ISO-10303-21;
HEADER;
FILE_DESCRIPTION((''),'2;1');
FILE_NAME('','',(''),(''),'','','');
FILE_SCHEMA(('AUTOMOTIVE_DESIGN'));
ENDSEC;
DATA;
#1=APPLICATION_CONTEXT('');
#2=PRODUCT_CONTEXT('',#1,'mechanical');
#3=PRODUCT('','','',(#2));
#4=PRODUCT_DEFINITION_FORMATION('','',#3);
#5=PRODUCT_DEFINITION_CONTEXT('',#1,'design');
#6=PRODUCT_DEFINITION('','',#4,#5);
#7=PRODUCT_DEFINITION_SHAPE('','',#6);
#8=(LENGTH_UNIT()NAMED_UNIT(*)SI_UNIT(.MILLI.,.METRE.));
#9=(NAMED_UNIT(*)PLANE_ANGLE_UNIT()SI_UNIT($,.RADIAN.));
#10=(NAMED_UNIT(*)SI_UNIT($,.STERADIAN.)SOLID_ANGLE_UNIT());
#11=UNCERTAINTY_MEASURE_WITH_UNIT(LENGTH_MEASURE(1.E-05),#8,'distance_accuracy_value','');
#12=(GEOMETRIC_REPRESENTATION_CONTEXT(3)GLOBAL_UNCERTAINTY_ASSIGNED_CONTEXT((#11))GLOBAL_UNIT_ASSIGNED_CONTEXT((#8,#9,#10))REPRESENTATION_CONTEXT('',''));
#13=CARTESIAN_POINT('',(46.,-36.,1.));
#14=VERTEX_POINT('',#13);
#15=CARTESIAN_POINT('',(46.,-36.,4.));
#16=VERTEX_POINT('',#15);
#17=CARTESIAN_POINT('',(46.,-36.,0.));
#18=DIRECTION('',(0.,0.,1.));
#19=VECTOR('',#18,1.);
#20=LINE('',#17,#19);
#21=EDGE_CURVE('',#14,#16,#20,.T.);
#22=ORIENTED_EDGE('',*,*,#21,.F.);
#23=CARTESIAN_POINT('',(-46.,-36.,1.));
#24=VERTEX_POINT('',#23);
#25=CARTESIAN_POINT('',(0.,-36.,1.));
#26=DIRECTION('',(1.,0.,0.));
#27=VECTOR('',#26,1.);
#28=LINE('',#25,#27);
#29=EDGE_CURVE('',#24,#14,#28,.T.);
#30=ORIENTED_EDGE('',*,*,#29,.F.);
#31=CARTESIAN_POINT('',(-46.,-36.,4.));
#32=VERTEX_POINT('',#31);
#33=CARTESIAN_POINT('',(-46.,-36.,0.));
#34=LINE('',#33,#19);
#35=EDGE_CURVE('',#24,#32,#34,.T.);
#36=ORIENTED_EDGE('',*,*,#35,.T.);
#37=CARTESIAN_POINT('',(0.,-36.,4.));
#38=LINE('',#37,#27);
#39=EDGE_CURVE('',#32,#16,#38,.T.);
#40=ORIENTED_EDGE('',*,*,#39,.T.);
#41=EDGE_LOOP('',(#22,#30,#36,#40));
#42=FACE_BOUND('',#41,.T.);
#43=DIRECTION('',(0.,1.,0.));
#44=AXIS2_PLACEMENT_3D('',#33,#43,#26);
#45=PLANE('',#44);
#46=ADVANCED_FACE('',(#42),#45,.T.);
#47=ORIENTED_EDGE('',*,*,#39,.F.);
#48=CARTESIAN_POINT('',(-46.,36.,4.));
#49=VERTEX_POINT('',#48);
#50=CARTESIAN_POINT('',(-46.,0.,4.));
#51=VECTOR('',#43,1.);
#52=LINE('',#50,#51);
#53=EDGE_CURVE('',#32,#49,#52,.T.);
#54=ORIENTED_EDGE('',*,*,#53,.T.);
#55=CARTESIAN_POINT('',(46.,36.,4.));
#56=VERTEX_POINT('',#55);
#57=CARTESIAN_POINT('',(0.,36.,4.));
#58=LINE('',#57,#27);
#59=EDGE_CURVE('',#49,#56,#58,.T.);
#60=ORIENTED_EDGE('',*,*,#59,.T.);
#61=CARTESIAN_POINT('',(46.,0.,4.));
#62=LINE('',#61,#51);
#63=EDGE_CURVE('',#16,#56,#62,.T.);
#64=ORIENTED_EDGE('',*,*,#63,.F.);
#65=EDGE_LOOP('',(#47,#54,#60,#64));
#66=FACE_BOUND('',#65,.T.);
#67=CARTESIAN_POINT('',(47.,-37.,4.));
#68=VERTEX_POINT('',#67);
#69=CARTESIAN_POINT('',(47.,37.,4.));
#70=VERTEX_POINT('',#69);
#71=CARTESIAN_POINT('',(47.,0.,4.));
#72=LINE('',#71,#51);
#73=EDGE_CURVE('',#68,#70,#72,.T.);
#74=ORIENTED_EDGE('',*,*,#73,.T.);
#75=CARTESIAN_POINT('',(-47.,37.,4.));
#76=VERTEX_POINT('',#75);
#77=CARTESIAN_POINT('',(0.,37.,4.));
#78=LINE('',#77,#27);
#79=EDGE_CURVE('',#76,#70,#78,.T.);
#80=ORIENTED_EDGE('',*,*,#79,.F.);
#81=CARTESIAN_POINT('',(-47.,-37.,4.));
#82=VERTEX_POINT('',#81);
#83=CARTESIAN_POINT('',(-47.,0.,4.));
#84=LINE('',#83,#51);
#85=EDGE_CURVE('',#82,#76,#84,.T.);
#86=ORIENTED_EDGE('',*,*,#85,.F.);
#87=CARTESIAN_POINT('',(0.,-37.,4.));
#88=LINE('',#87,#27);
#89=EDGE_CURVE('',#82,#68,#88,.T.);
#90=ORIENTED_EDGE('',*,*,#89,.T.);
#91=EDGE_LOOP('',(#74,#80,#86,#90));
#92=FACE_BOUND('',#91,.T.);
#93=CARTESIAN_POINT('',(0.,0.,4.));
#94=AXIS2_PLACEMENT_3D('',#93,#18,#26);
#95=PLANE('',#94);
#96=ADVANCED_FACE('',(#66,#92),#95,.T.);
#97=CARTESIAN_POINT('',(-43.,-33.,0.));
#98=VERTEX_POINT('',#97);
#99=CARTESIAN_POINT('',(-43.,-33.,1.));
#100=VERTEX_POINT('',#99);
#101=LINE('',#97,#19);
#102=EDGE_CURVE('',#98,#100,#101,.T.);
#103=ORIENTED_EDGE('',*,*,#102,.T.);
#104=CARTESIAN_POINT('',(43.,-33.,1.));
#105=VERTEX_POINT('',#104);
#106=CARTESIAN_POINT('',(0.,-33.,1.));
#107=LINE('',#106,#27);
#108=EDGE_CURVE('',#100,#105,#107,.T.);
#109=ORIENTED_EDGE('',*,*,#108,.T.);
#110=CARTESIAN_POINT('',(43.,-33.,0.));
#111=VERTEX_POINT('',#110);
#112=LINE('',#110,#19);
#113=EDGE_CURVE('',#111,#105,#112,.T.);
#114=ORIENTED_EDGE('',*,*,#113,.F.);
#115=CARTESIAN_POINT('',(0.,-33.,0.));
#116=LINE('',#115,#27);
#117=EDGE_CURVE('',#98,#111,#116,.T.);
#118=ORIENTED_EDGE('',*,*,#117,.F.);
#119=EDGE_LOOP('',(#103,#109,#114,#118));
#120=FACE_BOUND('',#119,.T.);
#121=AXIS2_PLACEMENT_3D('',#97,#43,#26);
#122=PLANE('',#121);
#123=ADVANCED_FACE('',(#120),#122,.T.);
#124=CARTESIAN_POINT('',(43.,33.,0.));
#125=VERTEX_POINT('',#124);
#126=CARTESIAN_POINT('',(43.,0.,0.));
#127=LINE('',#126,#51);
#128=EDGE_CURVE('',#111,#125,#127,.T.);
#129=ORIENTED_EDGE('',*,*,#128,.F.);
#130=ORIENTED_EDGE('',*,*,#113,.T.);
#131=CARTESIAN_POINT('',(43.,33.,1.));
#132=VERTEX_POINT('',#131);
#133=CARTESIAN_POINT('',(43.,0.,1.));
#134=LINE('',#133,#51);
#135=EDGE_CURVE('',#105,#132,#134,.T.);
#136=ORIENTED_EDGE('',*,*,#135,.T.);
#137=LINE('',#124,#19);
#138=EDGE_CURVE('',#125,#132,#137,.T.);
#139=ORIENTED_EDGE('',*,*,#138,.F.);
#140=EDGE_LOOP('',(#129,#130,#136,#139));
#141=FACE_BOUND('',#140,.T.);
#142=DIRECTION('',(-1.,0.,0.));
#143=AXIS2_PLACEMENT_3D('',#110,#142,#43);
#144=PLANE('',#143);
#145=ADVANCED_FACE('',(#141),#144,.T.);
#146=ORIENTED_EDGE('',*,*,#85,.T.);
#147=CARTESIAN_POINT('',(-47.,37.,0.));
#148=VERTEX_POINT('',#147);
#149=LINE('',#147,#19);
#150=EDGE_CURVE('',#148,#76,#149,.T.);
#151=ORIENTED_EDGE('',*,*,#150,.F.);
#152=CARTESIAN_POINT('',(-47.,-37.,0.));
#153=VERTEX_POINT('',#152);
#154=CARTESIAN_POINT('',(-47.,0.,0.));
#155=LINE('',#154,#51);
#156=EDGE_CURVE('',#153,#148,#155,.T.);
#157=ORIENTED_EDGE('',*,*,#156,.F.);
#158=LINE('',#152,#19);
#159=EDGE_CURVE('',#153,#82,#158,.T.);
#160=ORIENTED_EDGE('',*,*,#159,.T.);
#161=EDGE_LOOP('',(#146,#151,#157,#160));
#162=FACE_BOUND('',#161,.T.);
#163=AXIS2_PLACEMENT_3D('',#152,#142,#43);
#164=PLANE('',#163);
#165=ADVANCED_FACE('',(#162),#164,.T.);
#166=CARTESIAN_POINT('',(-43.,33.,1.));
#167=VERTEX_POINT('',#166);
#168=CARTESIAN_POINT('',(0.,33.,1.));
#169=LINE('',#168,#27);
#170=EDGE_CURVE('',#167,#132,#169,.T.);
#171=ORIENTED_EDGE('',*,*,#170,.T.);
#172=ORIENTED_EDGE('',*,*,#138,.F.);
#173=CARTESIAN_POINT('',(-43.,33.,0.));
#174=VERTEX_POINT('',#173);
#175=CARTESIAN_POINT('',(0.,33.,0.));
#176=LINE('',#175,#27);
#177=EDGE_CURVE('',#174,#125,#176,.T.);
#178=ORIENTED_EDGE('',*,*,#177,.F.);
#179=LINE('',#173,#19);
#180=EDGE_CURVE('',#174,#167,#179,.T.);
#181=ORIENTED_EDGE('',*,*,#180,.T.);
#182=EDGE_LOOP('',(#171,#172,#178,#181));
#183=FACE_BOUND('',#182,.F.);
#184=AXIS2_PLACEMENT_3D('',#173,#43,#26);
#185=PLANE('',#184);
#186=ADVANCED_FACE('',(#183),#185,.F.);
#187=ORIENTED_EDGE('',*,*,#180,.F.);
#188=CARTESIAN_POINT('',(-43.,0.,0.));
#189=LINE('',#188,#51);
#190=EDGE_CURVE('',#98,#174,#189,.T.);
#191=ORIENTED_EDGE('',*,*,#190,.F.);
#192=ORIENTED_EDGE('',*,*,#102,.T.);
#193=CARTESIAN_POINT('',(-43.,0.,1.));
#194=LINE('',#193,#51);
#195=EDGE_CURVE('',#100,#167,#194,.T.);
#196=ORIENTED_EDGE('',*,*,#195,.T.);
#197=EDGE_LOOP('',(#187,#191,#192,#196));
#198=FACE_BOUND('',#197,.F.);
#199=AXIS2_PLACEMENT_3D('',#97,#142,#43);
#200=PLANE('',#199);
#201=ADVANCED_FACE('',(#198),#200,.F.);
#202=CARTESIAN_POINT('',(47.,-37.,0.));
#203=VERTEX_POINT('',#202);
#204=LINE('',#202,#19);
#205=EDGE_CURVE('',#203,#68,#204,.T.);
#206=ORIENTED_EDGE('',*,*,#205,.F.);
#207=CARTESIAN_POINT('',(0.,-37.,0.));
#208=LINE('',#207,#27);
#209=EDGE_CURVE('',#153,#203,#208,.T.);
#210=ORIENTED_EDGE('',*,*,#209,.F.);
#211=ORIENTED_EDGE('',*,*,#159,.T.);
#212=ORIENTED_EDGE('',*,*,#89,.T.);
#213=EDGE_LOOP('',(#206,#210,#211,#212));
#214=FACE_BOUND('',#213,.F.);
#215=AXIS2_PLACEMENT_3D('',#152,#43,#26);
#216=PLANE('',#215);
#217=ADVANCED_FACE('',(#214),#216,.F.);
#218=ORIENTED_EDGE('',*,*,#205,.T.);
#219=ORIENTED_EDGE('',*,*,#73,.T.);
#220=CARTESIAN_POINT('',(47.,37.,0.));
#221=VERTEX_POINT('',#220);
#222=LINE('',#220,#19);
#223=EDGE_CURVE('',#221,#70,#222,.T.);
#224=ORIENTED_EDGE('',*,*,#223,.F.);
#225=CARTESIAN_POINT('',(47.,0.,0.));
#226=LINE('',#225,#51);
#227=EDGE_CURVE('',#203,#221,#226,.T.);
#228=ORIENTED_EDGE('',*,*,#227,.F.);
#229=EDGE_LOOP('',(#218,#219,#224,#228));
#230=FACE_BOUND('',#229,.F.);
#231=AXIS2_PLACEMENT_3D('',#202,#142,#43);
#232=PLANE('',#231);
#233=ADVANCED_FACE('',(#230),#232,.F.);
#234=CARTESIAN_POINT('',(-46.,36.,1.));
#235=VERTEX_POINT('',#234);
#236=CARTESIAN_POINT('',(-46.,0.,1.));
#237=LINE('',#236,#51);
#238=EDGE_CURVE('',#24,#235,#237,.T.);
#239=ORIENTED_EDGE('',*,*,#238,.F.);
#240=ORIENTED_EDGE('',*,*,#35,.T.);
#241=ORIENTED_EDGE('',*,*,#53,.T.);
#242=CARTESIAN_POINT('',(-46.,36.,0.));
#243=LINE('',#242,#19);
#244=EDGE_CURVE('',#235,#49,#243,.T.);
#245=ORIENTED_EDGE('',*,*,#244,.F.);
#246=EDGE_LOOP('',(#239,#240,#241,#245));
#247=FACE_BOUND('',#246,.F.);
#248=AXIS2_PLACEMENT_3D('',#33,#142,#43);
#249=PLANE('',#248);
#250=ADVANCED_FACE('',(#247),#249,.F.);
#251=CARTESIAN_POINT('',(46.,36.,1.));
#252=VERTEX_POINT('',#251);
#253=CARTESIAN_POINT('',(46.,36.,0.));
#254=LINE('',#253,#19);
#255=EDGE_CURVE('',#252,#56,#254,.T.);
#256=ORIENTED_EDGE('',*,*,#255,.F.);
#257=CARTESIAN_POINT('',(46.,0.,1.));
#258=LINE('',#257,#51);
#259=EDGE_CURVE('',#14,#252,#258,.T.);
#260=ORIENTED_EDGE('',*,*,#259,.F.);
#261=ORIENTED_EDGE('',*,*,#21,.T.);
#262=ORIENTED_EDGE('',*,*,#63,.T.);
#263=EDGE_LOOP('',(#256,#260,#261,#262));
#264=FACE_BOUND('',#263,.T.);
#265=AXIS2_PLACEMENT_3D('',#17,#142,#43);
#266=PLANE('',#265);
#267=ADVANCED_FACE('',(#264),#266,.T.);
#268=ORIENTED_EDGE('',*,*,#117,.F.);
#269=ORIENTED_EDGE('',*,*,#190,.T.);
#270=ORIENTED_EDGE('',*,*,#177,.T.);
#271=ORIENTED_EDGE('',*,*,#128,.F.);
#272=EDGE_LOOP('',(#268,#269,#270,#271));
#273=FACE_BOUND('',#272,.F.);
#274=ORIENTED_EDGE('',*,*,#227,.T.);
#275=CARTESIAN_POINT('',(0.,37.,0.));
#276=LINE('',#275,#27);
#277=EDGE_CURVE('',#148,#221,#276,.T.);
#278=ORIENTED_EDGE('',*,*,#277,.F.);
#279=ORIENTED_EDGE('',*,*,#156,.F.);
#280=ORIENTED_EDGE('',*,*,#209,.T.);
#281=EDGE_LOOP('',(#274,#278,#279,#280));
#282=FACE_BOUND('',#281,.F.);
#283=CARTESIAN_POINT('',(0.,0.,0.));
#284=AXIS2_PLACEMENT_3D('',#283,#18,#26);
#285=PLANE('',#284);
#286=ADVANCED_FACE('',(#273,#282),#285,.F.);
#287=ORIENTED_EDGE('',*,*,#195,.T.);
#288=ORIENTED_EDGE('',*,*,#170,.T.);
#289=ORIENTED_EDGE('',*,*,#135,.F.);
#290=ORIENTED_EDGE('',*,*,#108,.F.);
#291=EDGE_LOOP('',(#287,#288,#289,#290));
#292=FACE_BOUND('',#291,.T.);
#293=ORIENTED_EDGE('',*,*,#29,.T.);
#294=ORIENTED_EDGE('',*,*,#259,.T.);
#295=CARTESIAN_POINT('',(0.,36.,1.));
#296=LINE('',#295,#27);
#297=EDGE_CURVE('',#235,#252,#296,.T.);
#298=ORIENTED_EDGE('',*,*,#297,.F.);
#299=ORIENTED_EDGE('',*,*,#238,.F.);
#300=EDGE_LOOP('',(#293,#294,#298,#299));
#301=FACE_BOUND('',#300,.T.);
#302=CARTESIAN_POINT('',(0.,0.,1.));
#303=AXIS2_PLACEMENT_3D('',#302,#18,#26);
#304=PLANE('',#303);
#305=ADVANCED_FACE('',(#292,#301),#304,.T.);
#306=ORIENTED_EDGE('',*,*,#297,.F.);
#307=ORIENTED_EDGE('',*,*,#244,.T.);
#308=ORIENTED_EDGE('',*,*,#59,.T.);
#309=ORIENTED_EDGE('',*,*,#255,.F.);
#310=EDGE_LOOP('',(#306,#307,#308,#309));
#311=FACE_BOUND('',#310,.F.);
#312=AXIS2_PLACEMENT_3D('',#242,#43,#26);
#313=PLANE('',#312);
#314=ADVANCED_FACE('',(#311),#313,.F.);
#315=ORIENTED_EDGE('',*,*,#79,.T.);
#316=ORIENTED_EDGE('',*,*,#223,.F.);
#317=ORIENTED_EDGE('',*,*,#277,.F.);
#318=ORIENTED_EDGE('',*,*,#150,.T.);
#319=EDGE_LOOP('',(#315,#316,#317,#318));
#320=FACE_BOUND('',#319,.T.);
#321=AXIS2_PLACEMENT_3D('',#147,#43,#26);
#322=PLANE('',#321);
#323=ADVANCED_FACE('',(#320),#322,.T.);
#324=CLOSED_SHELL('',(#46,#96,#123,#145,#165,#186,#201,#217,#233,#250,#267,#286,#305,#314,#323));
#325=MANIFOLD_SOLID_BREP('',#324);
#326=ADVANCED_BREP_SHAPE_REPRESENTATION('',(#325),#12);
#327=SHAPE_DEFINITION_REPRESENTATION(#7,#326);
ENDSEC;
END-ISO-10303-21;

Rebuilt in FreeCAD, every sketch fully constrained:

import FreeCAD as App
import Part
import Sketcher
from FreeCAD import Vector
Q = App.Units.Quantity


def add_polygon(sketch, points):
    """Adds a closed chain of lines whose ends are joined by coincident constraints."""
    first, n = sketch.GeometryCount, len(points)
    for a, b in zip(points, points[1:] + points[:1]):
        sketch.addGeometry(Part.LineSegment(App.Vector(*a, 0), App.Vector(*b, 0)), False)
    for i in range(n):
        sketch.addConstraint(Sketcher.Constraint("Coincident", first + i, 2, first + (i + 1) % n, 1))

doc = App.newDocument("Part")
params = doc.addObject("Spreadsheet::Sheet", "Params")
for row, (alias, value) in enumerate([
    ("sketch1_width", "94 mm"),
    ("sketch1_width2", "92 mm"),
    ("sketch1_height", "74 mm"),
    ("sketch1_height2", "72 mm"),
    ("pad1_length", "4 mm"),
    ("sketch2_width", "92 mm"),
    ("sketch2_width2", "86 mm"),
    ("sketch2_height", "72 mm"),
    ("sketch2_height2", "66 mm"),
    ("pad2_length", "1 mm"),
], start=1):
    params.set(f"A{row}", alias)
    params.set(f"B{row}", "=" + value)
    params.setAlias(f"B{row}", alias)

body = doc.addObject("PartDesign::Body", "Body")

sketch1 = body.newObject("Sketcher::SketchObject", "Sketch")
sketch1.AttachmentSupport = (doc.getObject("XY_Plane"), [""])
sketch1.MapMode = "FlatFace"
add_polygon(sketch1, [(-47, 37), (-47, -37), (47, -37), (47, 37)])
add_polygon(sketch1, [(46, -36), (-46, -36), (-46, 36), (46, 36)])
sketch1.addConstraint([
    Sketcher.Constraint("Vertical", 0),
    Sketcher.Constraint("Horizontal", 1),
    Sketcher.Constraint("Vertical", 2),
    Sketcher.Constraint("Horizontal", 3),
    Sketcher.Constraint("Horizontal", 4),
    Sketcher.Constraint("Vertical", 5),
    Sketcher.Constraint("Horizontal", 6),
    Sketcher.Constraint("Vertical", 7),
    Sketcher.Constraint("Symmetric", 0, 2, 2, 2, -1, 1),
    Sketcher.Constraint("Symmetric", 4, 2, 6, 2, -1, 1),
    Sketcher.Constraint("DistanceX", 1, 1, 1, 2, Q("94 mm")),
    Sketcher.Constraint("DistanceX", 4, 2, 4, 1, Q("92 mm")),
    Sketcher.Constraint("DistanceY", 0, 2, 0, 1, Q("74 mm")),
    Sketcher.Constraint("DistanceY", 5, 1, 5, 2, Q("72 mm")),
])
sketch1.setExpression("Constraints[18]", "Params.sketch1_width")
sketch1.setExpression("Constraints[19]", "Params.sketch1_width2")
sketch1.setExpression("Constraints[20]", "Params.sketch1_height")
sketch1.setExpression("Constraints[21]", "Params.sketch1_height2")
pad1 = body.newObject("PartDesign::Pad", "Pad")
pad1.Profile = sketch1
pad1.setExpression("Length", "Params.pad1_length")

sketch2 = body.newObject("Sketcher::SketchObject", "Sketch001")
sketch2.AttachmentSupport = (doc.getObject("XY_Plane"), [""])
sketch2.MapMode = "FlatFace"
add_polygon(sketch2, [(-46, 36), (-46, -36), (46, -36), (46, 36)])
add_polygon(sketch2, [(43, -33), (-43, -33), (-43, 33), (43, 33)])
sketch2.addConstraint([
    Sketcher.Constraint("Vertical", 0),
    Sketcher.Constraint("Horizontal", 1),
    Sketcher.Constraint("Vertical", 2),
    Sketcher.Constraint("Horizontal", 3),
    Sketcher.Constraint("Horizontal", 4),
    Sketcher.Constraint("Vertical", 5),
    Sketcher.Constraint("Horizontal", 6),
    Sketcher.Constraint("Vertical", 7),
    Sketcher.Constraint("Symmetric", 0, 2, 2, 2, -1, 1),
    Sketcher.Constraint("Symmetric", 4, 2, 6, 2, -1, 1),
    Sketcher.Constraint("DistanceX", 1, 1, 1, 2, Q("92 mm")),
    Sketcher.Constraint("DistanceX", 4, 2, 4, 1, Q("86 mm")),
    Sketcher.Constraint("DistanceY", 0, 2, 0, 1, Q("72 mm")),
    Sketcher.Constraint("DistanceY", 5, 1, 5, 2, Q("66 mm")),
])
sketch2.setExpression("Constraints[18]", "Params.sketch2_width")
sketch2.setExpression("Constraints[19]", "Params.sketch2_width2")
sketch2.setExpression("Constraints[20]", "Params.sketch2_height")
sketch2.setExpression("Constraints[21]", "Params.sketch2_height2")
pad2 = body.newObject("PartDesign::Pad", "Pad001")
pad2.Profile = sketch2
pad2.setExpression("Length", "Params.pad2_length")

doc.recompute()
